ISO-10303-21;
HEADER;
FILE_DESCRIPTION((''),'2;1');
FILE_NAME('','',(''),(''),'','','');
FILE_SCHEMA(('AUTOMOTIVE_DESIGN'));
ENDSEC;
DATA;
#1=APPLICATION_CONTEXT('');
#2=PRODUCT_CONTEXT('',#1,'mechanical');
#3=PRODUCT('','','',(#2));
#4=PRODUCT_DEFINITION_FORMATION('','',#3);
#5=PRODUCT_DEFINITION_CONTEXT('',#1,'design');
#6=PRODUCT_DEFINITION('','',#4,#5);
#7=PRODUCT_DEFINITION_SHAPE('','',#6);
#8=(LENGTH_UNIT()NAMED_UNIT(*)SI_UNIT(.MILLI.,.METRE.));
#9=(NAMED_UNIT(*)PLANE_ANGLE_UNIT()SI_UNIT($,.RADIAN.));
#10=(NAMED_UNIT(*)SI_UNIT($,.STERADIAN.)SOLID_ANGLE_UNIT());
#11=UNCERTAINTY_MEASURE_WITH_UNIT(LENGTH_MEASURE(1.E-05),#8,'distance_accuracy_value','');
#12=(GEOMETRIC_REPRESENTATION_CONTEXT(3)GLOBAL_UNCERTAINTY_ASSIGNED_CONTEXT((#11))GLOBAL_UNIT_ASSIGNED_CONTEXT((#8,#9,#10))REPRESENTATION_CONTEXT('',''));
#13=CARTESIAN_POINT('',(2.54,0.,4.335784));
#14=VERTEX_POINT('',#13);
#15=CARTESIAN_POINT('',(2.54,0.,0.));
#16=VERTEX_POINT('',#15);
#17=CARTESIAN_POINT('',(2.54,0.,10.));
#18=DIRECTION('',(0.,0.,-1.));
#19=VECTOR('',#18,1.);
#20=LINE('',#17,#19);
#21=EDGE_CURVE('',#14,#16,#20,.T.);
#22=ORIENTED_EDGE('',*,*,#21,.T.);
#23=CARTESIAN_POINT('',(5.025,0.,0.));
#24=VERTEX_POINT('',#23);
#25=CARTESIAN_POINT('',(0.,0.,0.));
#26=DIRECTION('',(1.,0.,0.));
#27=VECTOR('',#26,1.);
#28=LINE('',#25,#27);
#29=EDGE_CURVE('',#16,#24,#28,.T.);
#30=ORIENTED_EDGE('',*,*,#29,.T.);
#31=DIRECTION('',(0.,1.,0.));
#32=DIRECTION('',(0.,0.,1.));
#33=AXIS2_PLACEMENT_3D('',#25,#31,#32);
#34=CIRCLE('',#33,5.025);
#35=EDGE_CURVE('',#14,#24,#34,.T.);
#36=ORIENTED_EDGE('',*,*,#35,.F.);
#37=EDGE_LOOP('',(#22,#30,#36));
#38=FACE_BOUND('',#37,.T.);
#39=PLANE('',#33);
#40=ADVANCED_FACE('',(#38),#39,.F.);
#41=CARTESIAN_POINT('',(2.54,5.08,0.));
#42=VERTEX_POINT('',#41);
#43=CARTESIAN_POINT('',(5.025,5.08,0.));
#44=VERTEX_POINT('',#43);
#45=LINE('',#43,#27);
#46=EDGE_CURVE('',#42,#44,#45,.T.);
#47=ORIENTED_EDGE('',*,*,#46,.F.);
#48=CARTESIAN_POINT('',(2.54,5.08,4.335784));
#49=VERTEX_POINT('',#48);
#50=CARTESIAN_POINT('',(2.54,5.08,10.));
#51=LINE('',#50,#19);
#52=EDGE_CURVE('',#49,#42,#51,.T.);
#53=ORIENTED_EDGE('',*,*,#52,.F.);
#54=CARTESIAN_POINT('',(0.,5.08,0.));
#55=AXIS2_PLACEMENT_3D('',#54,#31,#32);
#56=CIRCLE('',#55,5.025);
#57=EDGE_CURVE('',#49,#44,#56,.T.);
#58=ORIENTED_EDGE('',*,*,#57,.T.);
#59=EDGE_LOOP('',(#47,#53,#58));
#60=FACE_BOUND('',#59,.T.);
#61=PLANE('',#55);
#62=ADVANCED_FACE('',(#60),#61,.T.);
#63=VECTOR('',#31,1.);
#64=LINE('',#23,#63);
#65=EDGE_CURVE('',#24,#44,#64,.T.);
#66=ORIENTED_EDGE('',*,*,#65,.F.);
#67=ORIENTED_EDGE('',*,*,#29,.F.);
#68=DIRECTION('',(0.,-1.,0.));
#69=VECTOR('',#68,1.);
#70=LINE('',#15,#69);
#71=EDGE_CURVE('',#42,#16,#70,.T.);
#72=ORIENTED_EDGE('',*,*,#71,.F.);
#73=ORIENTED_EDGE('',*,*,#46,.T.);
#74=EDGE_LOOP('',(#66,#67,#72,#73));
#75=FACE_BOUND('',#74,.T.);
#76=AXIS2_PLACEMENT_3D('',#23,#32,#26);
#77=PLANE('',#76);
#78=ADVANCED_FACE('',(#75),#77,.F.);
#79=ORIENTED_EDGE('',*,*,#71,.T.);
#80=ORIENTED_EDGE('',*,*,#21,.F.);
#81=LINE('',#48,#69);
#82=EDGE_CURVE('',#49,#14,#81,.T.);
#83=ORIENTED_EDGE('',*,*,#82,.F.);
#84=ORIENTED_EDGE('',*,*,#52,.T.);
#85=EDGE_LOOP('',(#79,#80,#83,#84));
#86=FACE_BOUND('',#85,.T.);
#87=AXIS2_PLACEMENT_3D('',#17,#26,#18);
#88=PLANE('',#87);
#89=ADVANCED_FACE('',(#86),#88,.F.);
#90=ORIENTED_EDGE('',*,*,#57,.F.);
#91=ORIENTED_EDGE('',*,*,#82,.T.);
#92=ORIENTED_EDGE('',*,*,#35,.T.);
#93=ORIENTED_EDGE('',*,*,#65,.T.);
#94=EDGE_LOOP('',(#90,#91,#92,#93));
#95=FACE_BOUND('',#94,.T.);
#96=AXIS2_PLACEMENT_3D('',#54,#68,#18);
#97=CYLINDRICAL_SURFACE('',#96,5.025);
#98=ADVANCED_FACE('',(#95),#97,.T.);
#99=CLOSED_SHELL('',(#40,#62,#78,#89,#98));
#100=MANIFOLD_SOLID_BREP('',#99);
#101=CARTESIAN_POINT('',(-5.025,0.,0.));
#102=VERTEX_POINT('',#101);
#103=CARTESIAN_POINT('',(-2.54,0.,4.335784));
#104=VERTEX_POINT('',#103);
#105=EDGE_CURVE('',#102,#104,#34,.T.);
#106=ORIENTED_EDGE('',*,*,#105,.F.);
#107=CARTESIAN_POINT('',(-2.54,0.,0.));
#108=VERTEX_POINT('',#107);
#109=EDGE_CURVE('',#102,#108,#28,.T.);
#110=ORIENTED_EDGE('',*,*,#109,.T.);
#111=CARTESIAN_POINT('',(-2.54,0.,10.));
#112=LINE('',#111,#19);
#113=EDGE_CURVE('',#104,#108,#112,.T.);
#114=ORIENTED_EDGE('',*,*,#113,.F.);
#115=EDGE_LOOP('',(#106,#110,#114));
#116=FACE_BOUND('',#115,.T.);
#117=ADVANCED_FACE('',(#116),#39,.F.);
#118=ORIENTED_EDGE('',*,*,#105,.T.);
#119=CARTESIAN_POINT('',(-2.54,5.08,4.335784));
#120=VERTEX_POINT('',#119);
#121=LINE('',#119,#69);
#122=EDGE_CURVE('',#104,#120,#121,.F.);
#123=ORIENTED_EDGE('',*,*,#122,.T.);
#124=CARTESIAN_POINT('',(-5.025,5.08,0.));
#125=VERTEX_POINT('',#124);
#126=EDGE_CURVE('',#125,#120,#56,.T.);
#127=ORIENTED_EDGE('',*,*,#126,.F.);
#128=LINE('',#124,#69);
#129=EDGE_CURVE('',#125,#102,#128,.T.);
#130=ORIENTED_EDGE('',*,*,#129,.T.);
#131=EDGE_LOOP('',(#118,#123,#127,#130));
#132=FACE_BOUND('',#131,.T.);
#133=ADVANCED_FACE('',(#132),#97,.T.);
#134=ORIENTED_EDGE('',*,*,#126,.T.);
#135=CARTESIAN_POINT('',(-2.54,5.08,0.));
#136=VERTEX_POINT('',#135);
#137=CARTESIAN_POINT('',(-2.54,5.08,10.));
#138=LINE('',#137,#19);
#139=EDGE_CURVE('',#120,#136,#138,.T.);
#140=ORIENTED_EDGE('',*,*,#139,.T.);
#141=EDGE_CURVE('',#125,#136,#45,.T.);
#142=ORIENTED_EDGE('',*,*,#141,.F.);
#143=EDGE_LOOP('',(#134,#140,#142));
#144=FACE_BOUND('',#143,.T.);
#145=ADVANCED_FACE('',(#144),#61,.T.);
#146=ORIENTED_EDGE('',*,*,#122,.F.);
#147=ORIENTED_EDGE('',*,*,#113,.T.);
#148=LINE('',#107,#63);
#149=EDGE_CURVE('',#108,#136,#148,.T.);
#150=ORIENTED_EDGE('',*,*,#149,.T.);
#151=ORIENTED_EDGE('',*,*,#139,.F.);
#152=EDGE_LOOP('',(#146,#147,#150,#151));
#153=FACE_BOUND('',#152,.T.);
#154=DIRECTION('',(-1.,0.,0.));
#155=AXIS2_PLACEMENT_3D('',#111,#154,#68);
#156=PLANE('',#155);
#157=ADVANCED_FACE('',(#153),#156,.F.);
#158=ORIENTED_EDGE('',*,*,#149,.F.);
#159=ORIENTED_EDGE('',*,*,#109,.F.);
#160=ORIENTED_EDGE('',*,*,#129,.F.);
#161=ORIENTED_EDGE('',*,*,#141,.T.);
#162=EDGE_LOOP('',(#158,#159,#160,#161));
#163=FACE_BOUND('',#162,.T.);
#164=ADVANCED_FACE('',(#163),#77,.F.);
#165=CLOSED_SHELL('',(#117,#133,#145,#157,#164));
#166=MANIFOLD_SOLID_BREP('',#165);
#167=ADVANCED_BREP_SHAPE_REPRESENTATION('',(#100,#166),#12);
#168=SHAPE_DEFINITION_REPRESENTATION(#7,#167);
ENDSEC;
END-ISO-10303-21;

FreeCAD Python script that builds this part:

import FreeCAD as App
import Part
import Sketcher
from FreeCAD import Vector


def add_polygon(sketch, points):
    """Adds a closed chain of lines whose ends are joined by coincident constraints."""
    first, n = sketch.GeometryCount, len(points)
    for a, b in zip(points, points[1:] + points[:1]):
        sketch.addGeometry(Part.LineSegment(App.Vector(*a, 0), App.Vector(*b, 0)), False)
    for i in range(n):
        sketch.addConstraint(Sketcher.Constraint("Coincident", first + i, 2, first + (i + 1) % n, 1))

doc = App.newDocument("Part")
body = doc.addObject("PartDesign::Body", "Body")
body.AllowCompound = True

# Sketch on XZ plane
sketch1 = body.newObject("Sketcher::SketchObject", "Sketch")
sketch1.AttachmentSupport = (doc.getObject("XZ_Plane"), [""])
sketch1.MapMode = "FlatFace"
sketch1.addGeometry(Part.Circle(Vector(0, 0, 0), Vector(0, 0, 1), 5.025), False)
sketch1.addConstraint([
    Sketcher.Constraint("Coincident", 0, 3, -1, 1),
    Sketcher.Constraint("Diameter", 0, 10.05),
])
pad1 = body.newObject("PartDesign::Pad", "Pad")
pad1.Profile = sketch1
pad1.Length = 5.08
pad1.Reversed = True

# Sketch on XZ plane
sketch2 = body.newObject("Sketcher::SketchObject", "Sketch001")
sketch2.AttachmentSupport = (doc.getObject("XZ_Plane"), [""])
sketch2.MapMode = "FlatFace"
sketch2.AttachmentOffset = App.Placement(Vector(0, 0, -5.08), App.Rotation())
add_polygon(sketch2, [(-272.921121, -253.043275), (-272.921121, 0), (5.025, 0), (5.025, -253.043275)])  # lines 0-3
sketch2.addConstraint([
    Sketcher.Constraint("Vertical", 0),
    Sketcher.Constraint("Horizontal", 1),
    Sketcher.Constraint("Vertical", 2),
    Sketcher.Constraint("Horizontal", 3),
    Sketcher.Constraint("PointOnObject", 0, 2, -1),
    Sketcher.Constraint("DistanceX", -1, 1, 1, 2, 5.025),
    Sketcher.Constraint("DistanceX", 1, 1, 1, 2, 277.946121),
    Sketcher.Constraint("DistanceY", 0, 1, 0, 2, 253.043275),
])
pocket1 = body.newObject("PartDesign::Pocket", "Pocket")
pocket1.Profile = sketch2
pocket1.Length = 5.08
pocket1.Reversed = True

# Sketch on XY plane
sketch3 = body.newObject("Sketcher::SketchObject", "Sketch002")
sketch3.AttachmentSupport = (doc.getObject("XY_Plane"), [""])
sketch3.MapMode = "FlatFace"
add_polygon(sketch3, [(2.54, 5.08), (2.54, 0), (-2.54, 0), (-2.54, 5.08)])  # lines 0-3
sketch3.addConstraint([
    Sketcher.Constraint("Vertical", 0),
    Sketcher.Constraint("Horizontal", 1),
    Sketcher.Constraint("Vertical", 2),
    Sketcher.Constraint("Horizontal", 3),
    Sketcher.Constraint("Symmetric", 0, 2, 1, 2, -1, 1),
    Sketcher.Constraint("Equal", 3, 0),
    Sketcher.Constraint("DistanceX", 1, 2, 1, 1, 5.08),
])
pocket2 = body.newObject("PartDesign::Pocket", "Pocket001")
pocket2.Profile = sketch3
pocket2.Length = 10
pocket2.Reversed = True

doc.recompute()
